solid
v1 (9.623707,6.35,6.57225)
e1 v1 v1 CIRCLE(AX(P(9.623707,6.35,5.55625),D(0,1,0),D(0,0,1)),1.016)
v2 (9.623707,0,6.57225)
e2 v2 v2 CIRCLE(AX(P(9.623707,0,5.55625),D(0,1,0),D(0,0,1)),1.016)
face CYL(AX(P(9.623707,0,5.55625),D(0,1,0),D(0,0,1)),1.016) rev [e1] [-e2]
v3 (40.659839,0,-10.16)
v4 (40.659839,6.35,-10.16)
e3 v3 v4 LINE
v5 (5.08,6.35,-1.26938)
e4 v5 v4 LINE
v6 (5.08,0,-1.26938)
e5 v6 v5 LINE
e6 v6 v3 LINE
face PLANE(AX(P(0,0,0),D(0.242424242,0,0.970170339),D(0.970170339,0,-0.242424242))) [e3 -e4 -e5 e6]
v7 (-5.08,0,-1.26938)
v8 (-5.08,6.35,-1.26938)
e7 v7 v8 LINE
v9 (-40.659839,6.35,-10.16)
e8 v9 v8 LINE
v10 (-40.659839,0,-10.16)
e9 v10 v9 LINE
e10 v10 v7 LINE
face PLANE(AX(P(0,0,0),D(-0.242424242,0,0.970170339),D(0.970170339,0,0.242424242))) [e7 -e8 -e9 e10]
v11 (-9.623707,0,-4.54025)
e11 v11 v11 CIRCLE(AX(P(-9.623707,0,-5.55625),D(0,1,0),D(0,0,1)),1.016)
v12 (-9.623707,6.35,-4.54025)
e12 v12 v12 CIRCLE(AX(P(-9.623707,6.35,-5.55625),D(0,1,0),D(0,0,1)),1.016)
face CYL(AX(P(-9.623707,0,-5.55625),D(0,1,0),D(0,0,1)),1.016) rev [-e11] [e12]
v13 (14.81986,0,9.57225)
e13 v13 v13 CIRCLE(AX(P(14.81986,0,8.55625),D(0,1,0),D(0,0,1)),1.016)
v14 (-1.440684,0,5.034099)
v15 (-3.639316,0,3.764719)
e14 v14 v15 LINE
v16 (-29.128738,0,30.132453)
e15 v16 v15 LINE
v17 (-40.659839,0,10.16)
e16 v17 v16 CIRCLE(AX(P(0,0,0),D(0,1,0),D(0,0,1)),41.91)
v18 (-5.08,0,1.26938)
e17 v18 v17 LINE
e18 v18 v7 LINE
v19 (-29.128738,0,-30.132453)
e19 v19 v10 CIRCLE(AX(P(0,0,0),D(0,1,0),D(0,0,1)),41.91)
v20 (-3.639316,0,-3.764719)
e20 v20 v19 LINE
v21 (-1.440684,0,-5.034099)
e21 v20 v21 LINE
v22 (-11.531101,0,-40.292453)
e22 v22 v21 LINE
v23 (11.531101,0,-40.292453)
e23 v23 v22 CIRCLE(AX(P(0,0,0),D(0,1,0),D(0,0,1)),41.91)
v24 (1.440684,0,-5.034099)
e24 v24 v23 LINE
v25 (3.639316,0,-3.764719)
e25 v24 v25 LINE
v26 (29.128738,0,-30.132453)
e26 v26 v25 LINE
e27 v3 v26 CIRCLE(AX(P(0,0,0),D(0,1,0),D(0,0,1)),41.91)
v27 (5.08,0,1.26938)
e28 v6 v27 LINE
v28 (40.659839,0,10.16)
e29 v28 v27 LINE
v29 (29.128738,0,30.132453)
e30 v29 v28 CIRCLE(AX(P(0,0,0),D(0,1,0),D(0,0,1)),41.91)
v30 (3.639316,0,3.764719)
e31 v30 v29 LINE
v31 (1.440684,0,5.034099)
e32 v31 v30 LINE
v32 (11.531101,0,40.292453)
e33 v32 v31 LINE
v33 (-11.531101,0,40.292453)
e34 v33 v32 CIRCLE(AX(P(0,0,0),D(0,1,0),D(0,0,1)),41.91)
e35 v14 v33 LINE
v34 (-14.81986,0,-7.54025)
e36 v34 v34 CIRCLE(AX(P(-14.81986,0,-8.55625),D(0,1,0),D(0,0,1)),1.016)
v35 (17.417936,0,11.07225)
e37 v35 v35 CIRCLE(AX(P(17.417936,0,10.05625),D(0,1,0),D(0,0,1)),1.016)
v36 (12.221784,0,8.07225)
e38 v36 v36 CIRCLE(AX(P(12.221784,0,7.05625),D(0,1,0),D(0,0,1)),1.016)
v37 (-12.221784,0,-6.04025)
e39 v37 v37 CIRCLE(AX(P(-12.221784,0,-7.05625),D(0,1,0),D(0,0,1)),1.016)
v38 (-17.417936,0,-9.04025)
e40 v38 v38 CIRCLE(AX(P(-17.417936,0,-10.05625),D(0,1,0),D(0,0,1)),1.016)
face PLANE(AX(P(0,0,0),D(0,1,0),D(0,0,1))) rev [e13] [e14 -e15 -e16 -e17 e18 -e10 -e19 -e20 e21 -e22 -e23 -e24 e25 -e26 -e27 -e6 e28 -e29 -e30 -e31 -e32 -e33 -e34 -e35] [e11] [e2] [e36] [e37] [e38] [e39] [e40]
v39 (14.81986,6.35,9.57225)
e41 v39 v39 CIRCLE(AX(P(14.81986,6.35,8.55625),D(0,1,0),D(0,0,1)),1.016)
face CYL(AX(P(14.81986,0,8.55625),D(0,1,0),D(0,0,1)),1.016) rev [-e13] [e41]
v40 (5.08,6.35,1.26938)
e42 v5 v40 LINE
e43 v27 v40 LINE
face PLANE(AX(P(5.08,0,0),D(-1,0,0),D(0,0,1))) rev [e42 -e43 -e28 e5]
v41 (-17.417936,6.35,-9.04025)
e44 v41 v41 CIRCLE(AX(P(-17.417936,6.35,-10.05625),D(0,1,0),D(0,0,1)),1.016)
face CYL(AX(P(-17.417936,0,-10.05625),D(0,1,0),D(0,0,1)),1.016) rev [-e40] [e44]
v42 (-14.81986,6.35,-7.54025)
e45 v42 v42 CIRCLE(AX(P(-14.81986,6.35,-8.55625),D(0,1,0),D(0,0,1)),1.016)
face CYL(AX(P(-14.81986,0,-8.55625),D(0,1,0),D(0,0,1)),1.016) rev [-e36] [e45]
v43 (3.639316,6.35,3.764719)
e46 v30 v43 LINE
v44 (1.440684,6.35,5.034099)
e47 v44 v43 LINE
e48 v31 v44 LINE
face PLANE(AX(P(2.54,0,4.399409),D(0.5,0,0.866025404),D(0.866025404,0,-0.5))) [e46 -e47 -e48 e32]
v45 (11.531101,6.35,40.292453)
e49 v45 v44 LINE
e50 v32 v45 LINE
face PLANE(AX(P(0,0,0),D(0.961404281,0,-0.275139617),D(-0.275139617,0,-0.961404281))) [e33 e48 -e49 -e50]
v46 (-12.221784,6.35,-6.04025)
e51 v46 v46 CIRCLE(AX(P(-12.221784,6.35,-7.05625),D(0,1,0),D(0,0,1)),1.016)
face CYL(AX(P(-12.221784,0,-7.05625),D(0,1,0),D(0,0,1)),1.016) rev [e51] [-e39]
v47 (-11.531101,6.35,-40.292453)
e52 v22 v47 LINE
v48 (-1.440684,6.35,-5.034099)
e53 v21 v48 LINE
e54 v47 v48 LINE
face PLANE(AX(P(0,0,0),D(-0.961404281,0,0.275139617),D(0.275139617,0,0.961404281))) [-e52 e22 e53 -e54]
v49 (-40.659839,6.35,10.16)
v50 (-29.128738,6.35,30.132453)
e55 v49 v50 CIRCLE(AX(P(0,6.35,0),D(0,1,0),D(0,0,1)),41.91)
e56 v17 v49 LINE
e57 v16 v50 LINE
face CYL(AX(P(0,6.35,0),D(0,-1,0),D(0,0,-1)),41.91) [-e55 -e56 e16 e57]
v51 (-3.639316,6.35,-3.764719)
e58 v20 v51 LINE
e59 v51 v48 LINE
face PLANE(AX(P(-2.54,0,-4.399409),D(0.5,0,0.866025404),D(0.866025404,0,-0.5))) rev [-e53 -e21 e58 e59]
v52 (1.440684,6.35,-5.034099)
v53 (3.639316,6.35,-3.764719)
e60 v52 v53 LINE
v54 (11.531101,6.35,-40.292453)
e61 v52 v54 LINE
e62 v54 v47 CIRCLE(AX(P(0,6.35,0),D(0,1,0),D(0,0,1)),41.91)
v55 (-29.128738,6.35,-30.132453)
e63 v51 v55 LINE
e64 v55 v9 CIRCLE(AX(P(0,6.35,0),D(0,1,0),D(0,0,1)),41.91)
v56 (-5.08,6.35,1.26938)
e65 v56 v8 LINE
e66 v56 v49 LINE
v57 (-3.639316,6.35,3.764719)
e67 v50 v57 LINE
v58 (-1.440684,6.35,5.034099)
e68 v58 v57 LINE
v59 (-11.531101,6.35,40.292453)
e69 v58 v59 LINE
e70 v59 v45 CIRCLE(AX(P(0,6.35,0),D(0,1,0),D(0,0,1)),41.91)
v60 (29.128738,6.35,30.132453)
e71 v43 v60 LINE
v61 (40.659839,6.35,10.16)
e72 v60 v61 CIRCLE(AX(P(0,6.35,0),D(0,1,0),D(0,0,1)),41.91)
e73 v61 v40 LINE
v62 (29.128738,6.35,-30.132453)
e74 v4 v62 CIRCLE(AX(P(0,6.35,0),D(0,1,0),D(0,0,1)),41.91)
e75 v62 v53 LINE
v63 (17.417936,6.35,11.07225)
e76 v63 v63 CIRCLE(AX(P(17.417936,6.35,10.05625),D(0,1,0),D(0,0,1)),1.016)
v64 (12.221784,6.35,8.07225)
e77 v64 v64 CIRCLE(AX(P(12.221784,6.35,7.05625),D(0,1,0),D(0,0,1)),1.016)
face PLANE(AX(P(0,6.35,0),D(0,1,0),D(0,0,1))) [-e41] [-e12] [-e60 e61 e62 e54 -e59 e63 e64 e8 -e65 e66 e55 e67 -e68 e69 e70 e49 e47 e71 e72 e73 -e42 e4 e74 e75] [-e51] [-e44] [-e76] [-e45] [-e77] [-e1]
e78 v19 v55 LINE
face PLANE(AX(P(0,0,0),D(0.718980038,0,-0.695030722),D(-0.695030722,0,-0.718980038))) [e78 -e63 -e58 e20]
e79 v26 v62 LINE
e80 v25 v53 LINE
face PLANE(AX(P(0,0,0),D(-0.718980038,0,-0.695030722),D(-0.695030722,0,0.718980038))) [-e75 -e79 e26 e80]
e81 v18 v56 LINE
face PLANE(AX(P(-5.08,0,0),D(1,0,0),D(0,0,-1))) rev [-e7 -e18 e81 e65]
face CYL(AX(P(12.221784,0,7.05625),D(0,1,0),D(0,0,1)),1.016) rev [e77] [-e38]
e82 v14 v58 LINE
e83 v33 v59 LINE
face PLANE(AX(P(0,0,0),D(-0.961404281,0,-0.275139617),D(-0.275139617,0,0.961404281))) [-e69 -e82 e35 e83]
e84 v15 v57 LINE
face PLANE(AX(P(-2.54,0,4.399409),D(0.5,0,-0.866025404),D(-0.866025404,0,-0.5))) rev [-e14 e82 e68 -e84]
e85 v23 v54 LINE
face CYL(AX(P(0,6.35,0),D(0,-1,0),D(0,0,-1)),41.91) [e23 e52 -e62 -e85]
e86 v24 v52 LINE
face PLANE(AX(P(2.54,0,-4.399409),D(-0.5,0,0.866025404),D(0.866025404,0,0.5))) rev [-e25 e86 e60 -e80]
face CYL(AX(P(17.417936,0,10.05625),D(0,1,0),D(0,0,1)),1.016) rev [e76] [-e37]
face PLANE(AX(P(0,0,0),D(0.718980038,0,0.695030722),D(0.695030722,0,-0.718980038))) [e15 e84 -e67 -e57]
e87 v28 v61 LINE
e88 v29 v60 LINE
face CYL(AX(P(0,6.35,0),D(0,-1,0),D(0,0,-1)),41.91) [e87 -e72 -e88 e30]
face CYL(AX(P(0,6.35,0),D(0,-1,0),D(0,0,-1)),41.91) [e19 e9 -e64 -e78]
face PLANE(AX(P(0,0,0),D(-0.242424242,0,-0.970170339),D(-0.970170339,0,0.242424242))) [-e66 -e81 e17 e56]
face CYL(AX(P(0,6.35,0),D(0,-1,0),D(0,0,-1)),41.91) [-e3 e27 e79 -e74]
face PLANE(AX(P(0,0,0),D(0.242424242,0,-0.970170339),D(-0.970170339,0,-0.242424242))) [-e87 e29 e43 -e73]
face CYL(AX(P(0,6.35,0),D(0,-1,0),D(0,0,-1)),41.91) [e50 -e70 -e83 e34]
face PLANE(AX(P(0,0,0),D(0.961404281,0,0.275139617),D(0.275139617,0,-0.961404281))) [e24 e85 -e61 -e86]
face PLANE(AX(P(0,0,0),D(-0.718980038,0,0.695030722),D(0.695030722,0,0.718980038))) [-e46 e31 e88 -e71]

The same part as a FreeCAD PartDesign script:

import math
import FreeCAD as App
import Part
import Sketcher
from FreeCAD import Vector
Q = App.Units.Quantity

doc = App.newDocument("Part")
body = doc.addObject("PartDesign::Body", "Body")

sketch1 = doc.addObject("Sketcher::SketchObject", "Sketch")
body.addObject(sketch1)
sketch1.AttachmentSupport = (doc.XZ_Plane, [""])
sketch1.MapMode = "FlatFace"
sketch1.addGeometry(Part.Circle(Vector(0, 0, 0), Vector(0, 0, 1), 41.91), False)
sketch1.addConstraint([
    Sketcher.Constraint("Coincident", 0, 3, -1, 1),
    Sketcher.Constraint("Diameter", 0, Q("3.3 in")),
])
pad1 = doc.addObject("PartDesign::Pad", "Pad")
body.addObject(pad1)
pad1.Profile = sketch1
pad1.Length = Q("0.25 in")
pad1.Reversed = True

sketch2 = doc.addObject("Sketcher::SketchObject", "Sketch001")
body.addObject(sketch2)
sketch2.AttachmentSupport = (doc.XZ_Plane, [""])
sketch2.MapMode = "FlatFace"
sketch2.AttachmentOffset = App.Placement(Vector(0, 0, -0.25 * 25.4), App.Rotation())
sketch2.addGeometry([
    Part.LineSegment(Vector(-1.440684, -5.034099, 0), Vector(-11.531101, -40.292453, 0)),
    Part.ArcOfCircle(Part.Circle(Vector(0, 0, 0), Vector(0, 0, 1), 41.91), math.radians(-134.029665), math.radians(-105.970335)),
    Part.LineSegment(Vector(-29.128738, -30.132453, 0), Vector(-3.639316, -3.764719, 0)),
    Part.LineSegment(Vector(-3.639316, -3.764719, 0), Vector(-1.440684, -5.034099, 0)),
    Part.LineSegment(Vector(3.639316, -3.764719, 0), Vector(29.128738, -30.132453, 0)),
    Part.ArcOfCircle(Part.Circle(Vector(0, 0, 0), Vector(0, 0, 1), 41.91), math.radians(-74.029665), math.radians(-45.970335)),
    Part.LineSegment(Vector(11.531101, -40.292453, 0), Vector(1.440684, -5.034099, 0)),
    Part.LineSegment(Vector(1.440684, -5.034099, 0), Vector(3.639316, -3.764719, 0)),
    Part.LineSegment(Vector(5.08, 1.26938, 0), Vector(40.659839, 10.16, 0)),
    Part.ArcOfCircle(Part.Circle(Vector(0, 0, 0), Vector(0, 0, 1), 41.91), math.radians(0), math.radians(14.029665)),
    Part.ArcOfCircle(Part.Circle(Vector(0, 0, 0), Vector(0, 0, 1), 41.91), math.radians(-14.029665), math.radians(0)),
    Part.LineSegment(Vector(40.659839, -10.16, 0), Vector(5.08, -1.26938, 0)),
    Part.LineSegment(Vector(5.08, -1.26938, 0), Vector(5.08, 1.26938, 0)),
    Part.ArcOfCircle(Part.Circle(Vector(0, 0, 0), Vector(0, 0, 1), 41.91), math.radians(45.970335), math.radians(74.029665)),
    Part.LineSegment(Vector(29.128738, 30.132453, 0), Vector(3.639316, 3.764719, 0)),
    Part.LineSegment(Vector(3.639316, 3.764719, 0), Vector(1.440684, 5.034099, 0)),
    Part.LineSegment(Vector(1.440684, 5.034099, 0), Vector(11.531101, 40.292453, 0)),
    Part.ArcOfCircle(Part.Circle(Vector(0, 0, 0), Vector(0, 0, 1), 41.91), math.radians(105.970335), math.radians(134.029665)),
    Part.LineSegment(Vector(-11.531101, 40.292453, 0), Vector(-1.440684, 5.034099, 0)),
    Part.LineSegment(Vector(-1.440684, 5.034099, 0), Vector(-3.639316, 3.764719, 0)),
    Part.LineSegment(Vector(-3.639316, 3.764719, 0), Vector(-29.128738, 30.132453, 0)),
    Part.ArcOfCircle(Part.Circle(Vector(0, 0, 0), Vector(0, 0, 1), 41.91), math.radians(165.970335), math.radians(194.029665)),
    Part.LineSegment(Vector(-40.659839, 10.16, 0), Vector(-5.08, 1.26938, 0)),
    Part.LineSegment(Vector(-5.08, 1.26938, 0), Vector(-5.08, -1.26938, 0)),
    Part.LineSegment(Vector(-5.08, -1.26938, 0), Vector(-40.659839, -10.16, 0)),
], False)
sketch2.addConstraint([
    Sketcher.Constraint("Coincident", 0, 2, 1, 2),
    Sketcher.Constraint("Coincident", 1, 1, 2, 1),
    Sketcher.Constraint("Coincident", 2, 2, 3, 1),
    Sketcher.Constraint("Coincident", 3, 2, 0, 1),
    Sketcher.Constraint("Coincident", 4, 2, 5, 2),
    Sketcher.Constraint("Coincident", 5, 1, 6, 1),
    Sketcher.Constraint("Coincident", 6, 2, 7, 1),
    Sketcher.Constraint("Coincident", 7, 2, 4, 1),
    Sketcher.Constraint("Coincident", 8, 2, 9, 2),
    Sketcher.Constraint("Tangent", 9, 1, 10, 2),
    Sketcher.Constraint("Coincident", 10, 1, 11, 1),
    Sketcher.Constraint("Coincident", 11, 2, 12, 1),
    Sketcher.Constraint("Coincident", 12, 2, 8, 1),
    Sketcher.Constraint("Coincident", 13, 1, 14, 1),
    Sketcher.Constraint("Coincident", 14, 2, 15, 1),
    Sketcher.Constraint("Coincident", 15, 2, 16, 1),
    Sketcher.Constraint("Coincident", 16, 2, 13, 2),
    Sketcher.Constraint("Coincident", 17, 1, 18, 1),
    Sketcher.Constraint("Coincident", 18, 2, 19, 1),
    Sketcher.Constraint("Coincident", 19, 2, 20, 1),
    Sketcher.Constraint("Coincident", 20, 2, 17, 2),
    Sketcher.Constraint("Coincident", 21, 1, 22, 1),
    Sketcher.Constraint("Coincident", 22, 2, 23, 1),
    Sketcher.Constraint("Coincident", 23, 2, 24, 1),
    Sketcher.Constraint("Coincident", 24, 2, 21, 2),
    Sketcher.Constraint("Vertical", 12),
    Sketcher.Constraint("Vertical", 23),
    Sketcher.Constraint("Coincident", 1, 3, -1, 1),
    Sketcher.Constraint("Coincident", 5, 3, -1, 1),
    Sketcher.Constraint("Coincident", 9, 3, -1, 1),
    Sketcher.Constraint("Coincident", 13, 3, -1, 1),
    Sketcher.Constraint("Coincident", 17, 3, -1, 1),
    Sketcher.Constraint("Coincident", 21, 3, -1, 1),
    Sketcher.Constraint("Equal", 1, 5),
    Sketcher.Constraint("Equal", 5, 9),
    Sketcher.Constraint("Equal", 9, 10),
    Sketcher.Constraint("Equal", 10, 13),
    Sketcher.Constraint("Equal", 13, 17),
    Sketcher.Constraint("Equal", 17, 21),
    Sketcher.Constraint("Symmetric", 2, 2, 14, 2, -1, 1),
    Sketcher.Constraint("Symmetric", 3, 2, 15, 2, -1, 1),
    Sketcher.Constraint("Symmetric", 6, 2, 18, 2, -1, 1),
    Sketcher.Constraint("Symmetric", 7, 2, 19, 2, -1, 1),
    Sketcher.Constraint("Symmetric", 11, 2, 22, 2, -1, 1),
    Sketcher.Constraint("Symmetric", 3, 2, 6, 2, -2),
    Sketcher.Constraint("Symmetric", 2, 2, 7, 2, -2),
    Sketcher.Constraint("PointOnObject", 9, 1, -1),
    Sketcher.Constraint("Parallel", 2, 14),
    Sketcher.Constraint("Parallel", 0, 16),
    Sketcher.Constraint("Parallel", 6, 18),
    Sketcher.Constraint("Parallel", 4, 20),
    Sketcher.Constraint("Parallel", 11, 22),
    Sketcher.Constraint("Parallel", 8, 24),
    Sketcher.Constraint("Horizontal", 1, 1, 4, 2),
    Sketcher.Constraint("Horizontal", 0, 2, 5, 1),
    Sketcher.Constraint("Horizontal", 8, 2, 21, 1),
    Sketcher.Constraint("Horizontal", 12, 2, 22, 2),
    Sketcher.Constraint("Horizontal", 11, 2, 23, 2),
    Sketcher.Constraint("Equal", 0, 2),
    Sketcher.Constraint("Equal", 6, 8),
    Sketcher.Constraint("Radius", 1, Q("1.65 in")),
    Sketcher.Constraint("Angle", 3, Q("-30 deg")),
    Sketcher.Constraint("DistanceY", -1, 1, 8, 2, Q("0.4 in")),
    Sketcher.Constraint("DistanceX", -1, 1, 11, 2, Q("0.2 in")),
    Sketcher.Constraint("DistanceY", 0, 2, 1, 1, Q("0.4 in")),
    Sketcher.Constraint("DistanceX", 2, 2, 6, 2, Q("0.2 in")),
    Sketcher.Constraint("DistanceY", 12, 1, 12, 2, Q("2.538761 mm")),
    Sketcher.Constraint("DistanceX", 0, 2, -1, 1, Q("11.531101 mm")),
])
pocket1 = doc.addObject("PartDesign::Pocket", "Pocket")
body.addObject(pocket1)
pocket1.Profile = sketch2
pocket1.Type = "ThroughAll"
pocket1.Reversed = True

sketch3 = doc.addObject("Sketcher::SketchObject", "Sketch002")
body.addObject(sketch3)
sketch3.AttachmentSupport = (doc.XZ_Plane, [""])
sketch3.MapMode = "FlatFace"
sketch3.AttachmentOffset = App.Placement(Vector(0, 0, -0.25 * 25.4), App.Rotation())
sketch3.addGeometry([
    Part.Circle(Vector(17.417936, 10.05625, 0), Vector(0, 0, 1), 1.016),
    Part.Circle(Vector(-7.05625, 12.221784, 0), Vector(0, 0, 1), 1.016),
    Part.Circle(Vector(-8.55625, 14.81986, 0), Vector(0, 0, 1), 1.016),
    Part.Circle(Vector(-10.05625, 17.417936, 0), Vector(0, 0, 1), 1.016),
    Part.Circle(Vector(-9.623707, -5.55625, 0), Vector(0, 0, 1), 1.016),
    Part.Circle(Vector(5.55625, -9.623707, 0), Vector(0, 0, 1), 1.016),
    Part.Circle(Vector(9.623707, 5.55625, 0), Vector(0, 0, 1), 1.016),
    Part.Circle(Vector(-5.55625, 9.623707, 0), Vector(0, 0, 1), 1.016),
    Part.Circle(Vector(-14.81986, -8.55625, 0), Vector(0, 0, 1), 1.016),
    Part.Circle(Vector(-17.417936, -10.05625, 0), Vector(0, 0, 1), 1.016),
    Part.Circle(Vector(-12.221784, -7.05625, 0), Vector(0, 0, 1), 1.016),
    Part.Circle(Vector(7.05625, -12.221784, 0), Vector(0, 0, 1), 1.016),
    Part.Circle(Vector(8.55625, -14.81986, 0), Vector(0, 0, 1), 1.016),
    Part.Circle(Vector(10.05625, -17.417936, 0), Vector(0, 0, 1), 1.016),
    Part.Circle(Vector(12.221784, 7.05625, 0), Vector(0, 0, 1), 1.016),
    Part.Circle(Vector(14.81986, 8.55625, 0), Vector(0, 0, 1), 1.016),
], False)
sketch3.addConstraint([
    Sketcher.Constraint("Equal", 0, 1),
    Sketcher.Constraint("Equal", 1, 2),
    Sketcher.Constraint("Equal", 2, 3),
    Sketcher.Constraint("Equal", 3, 4),
    Sketcher.Constraint("Equal", 4, 5),
    Sketcher.Constraint("Equal", 5, 6),
    Sketcher.Constraint("Equal", 6, 7),
    Sketcher.Constraint("Equal", 7, 8),
    Sketcher.Constraint("Equal", 8, 9),
    Sketcher.Constraint("Equal", 9, 10),
    Sketcher.Constraint("Equal", 10, 11),
    Sketcher.Constraint("Equal", 11, 12),
    Sketcher.Constraint("Equal", 12, 13),
    Sketcher.Constraint("Equal", 13, 14),
    Sketcher.Constraint("Equal", 14, 15),
    Sketcher.Constraint("Symmetric", 4, 3, 6, 3, -1, 1),
    Sketcher.Constraint("Symmetric", 5, 3, 7, 3, -1, 1),
    Sketcher.Constraint("Symmetric", 0, 3, 9, 3, -1, 1),
    Sketcher.Constraint("Symmetric", 1, 3, 11, 3, -1, 1),
    Sketcher.Constraint("Symmetric", 2, 3, 12, 3, -1, 1),
    Sketcher.Constraint("Symmetric", 3, 3, 13, 3, -1, 1),
    Sketcher.Constraint("Symmetric", 10, 3, 14, 3, -1, 1),
    Sketcher.Constraint("Symmetric", 8, 3, 15, 3, -1, 1),
    Sketcher.Constraint("Diameter", 0, Q("0.08 in")),
    Sketcher.Constraint("DistanceY", 4, 3, -1, 1, Q("0.21875 in")),
    Sketcher.Constraint("DistanceX", -1, 1, 5, 3, Q("0.21875 in")),
    Sketcher.Constraint("DistanceX", 2, 3, 1, 3, Q("1.5 mm")),
    Sketcher.Constraint("DistanceX", 3, 3, 2, 3, Q("1.5 mm")),
    Sketcher.Constraint("DistanceY", 4, 3, 0, 3, Q("15.6125 mm")),
    Sketcher.Constraint("DistanceX", 1, 3, 5, 3, Q("12.6125 mm")),
    Sketcher.Constraint("DistanceY", 8, 3, 4, 3, Q("3 mm")),
    Sketcher.Constraint("DistanceY", 10, 3, 4, 3, Q("1.5 mm")),
    Sketcher.Constraint("DistanceY", -1, 1, 2, 3, Q("14.81986 mm")),
    Sketcher.Constraint("DistanceX", 8, 3, -1, 1, Q("14.81986 mm")),
    Sketcher.Constraint("DistanceY", 5, 3, 1, 3, Q("21.845491 mm")),
    Sketcher.Constraint("DistanceX", 6, 3, 0, 3, Q("7.794229 mm")),
    Sketcher.Constraint("DistanceY", 7, 3, 3, 3, Q("7.794229 mm")),
    Sketcher.Constraint("DistanceX", -1, 1, 0, 3, Q("17.417936 mm")),
    Sketcher.Constraint("DistanceY", -1, 1, 1, 3, Q("12.221784 mm")),
    Sketcher.Constraint("DistanceX", 10, 3, -1, 1, Q("12.221784 mm")),
])
pocket2 = doc.addObject("PartDesign::Pocket", "Pocket001")
body.addObject(pocket2)
pocket2.Profile = sketch3
pocket2.Type = "ThroughAll"
pocket2.Reversed = True

doc.recompute()
